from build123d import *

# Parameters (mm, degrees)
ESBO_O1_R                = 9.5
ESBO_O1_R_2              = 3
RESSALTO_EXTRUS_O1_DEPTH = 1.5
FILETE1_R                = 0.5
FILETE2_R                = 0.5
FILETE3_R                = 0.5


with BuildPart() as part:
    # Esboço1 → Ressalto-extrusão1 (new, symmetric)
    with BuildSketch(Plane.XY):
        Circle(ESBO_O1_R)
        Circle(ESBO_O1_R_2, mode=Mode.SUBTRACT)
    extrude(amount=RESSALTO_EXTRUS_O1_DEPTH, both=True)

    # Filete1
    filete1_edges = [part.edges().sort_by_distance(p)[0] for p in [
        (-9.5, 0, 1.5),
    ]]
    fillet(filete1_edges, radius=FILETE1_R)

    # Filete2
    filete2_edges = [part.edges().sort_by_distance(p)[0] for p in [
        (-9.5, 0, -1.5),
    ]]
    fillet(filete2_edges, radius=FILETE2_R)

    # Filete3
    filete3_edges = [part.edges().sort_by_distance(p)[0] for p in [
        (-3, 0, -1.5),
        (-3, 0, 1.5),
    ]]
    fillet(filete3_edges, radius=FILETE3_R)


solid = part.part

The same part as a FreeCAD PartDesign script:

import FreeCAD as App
import Part
import Sketcher
from FreeCAD import Vector
Q = App.Units.Quantity


def edges_at(feature, points):
    """Names of the edges that pass closest to the given points."""
    edges = feature.Shape.Edges
    near = lambda p: min(range(len(edges)), key=lambda i: edges[i].distToShape(Part.Vertex(*p))[0])
    return sorted({f"Edge{near(p) + 1}" for p in points})

doc = App.newDocument("Part")
params = doc.addObject("Spreadsheet::Sheet", "Params")
for row, (alias, value) in enumerate([
    ("sketch1_diameter", "19 mm"),
    ("sketch1_diameter2", "6 mm"),
    ("pad1_length", "3 mm"),
    ("fillet_radius", "0.5 mm"),
    ("fillet2_radius", "0.5 mm"),
    ("fillet3_radius", "0.5 mm"),
], start=1):
    params.set(f"A{row}", alias)
    params.set(f"B{row}", "=" + value)
    params.setAlias(f"B{row}", alias)

body = doc.addObject("PartDesign::Body", "Body")

sketch1 = body.newObject("Sketcher::SketchObject", "Sketch")
sketch1.AttachmentSupport = (doc.getObject("XY_Plane"), [""])
sketch1.MapMode = "FlatFace"
sketch1.addGeometry([
    Part.Circle(Vector(0, 0, 0), Vector(0, 0, 1), 9.5),
    Part.Circle(Vector(0, 0, 0), Vector(0, 0, 1), 3),
], False)
sketch1.addConstraint([
    Sketcher.Constraint("Coincident", 0, 3, -1, 1),
    Sketcher.Constraint("Coincident", 1, 3, -1, 1),
    Sketcher.Constraint("Diameter", 0, Q("19 mm")),
    Sketcher.Constraint("Diameter", 1, Q("6 mm")),
])
sketch1.setExpression("Constraints[2]", "Params.sketch1_diameter")
sketch1.setExpression("Constraints[3]", "Params.sketch1_diameter2")
pad1 = body.newObject("PartDesign::Pad", "Pad")
pad1.Profile = sketch1
pad1.setExpression("Length", "Params.pad1_length")
pad1.Midplane = True
doc.recompute()

fillet = body.newObject("PartDesign::Fillet", "Fillet")
fillet.Base = (pad1, edges_at(pad1, [(-9.5, 0, 1.5)]))
fillet.setExpression("Radius", "Params.fillet_radius")
doc.recompute()

fillet2 = body.newObject("PartDesign::Fillet", "Fillet001")
fillet2.Base = (fillet, edges_at(fillet, [(-9.5, 0, -1.5)]))
fillet2.setExpression("Radius", "Params.fillet2_radius")
doc.recompute()

fillet3 = body.newObject("PartDesign::Fillet", "Fillet002")
fillet3.Base = (fillet2, edges_at(fillet2, [(-3, 0, -1.5), (-3, 0, 1.5)]))
fillet3.setExpression("Radius", "Params.fillet3_radius")

doc.recompute()
